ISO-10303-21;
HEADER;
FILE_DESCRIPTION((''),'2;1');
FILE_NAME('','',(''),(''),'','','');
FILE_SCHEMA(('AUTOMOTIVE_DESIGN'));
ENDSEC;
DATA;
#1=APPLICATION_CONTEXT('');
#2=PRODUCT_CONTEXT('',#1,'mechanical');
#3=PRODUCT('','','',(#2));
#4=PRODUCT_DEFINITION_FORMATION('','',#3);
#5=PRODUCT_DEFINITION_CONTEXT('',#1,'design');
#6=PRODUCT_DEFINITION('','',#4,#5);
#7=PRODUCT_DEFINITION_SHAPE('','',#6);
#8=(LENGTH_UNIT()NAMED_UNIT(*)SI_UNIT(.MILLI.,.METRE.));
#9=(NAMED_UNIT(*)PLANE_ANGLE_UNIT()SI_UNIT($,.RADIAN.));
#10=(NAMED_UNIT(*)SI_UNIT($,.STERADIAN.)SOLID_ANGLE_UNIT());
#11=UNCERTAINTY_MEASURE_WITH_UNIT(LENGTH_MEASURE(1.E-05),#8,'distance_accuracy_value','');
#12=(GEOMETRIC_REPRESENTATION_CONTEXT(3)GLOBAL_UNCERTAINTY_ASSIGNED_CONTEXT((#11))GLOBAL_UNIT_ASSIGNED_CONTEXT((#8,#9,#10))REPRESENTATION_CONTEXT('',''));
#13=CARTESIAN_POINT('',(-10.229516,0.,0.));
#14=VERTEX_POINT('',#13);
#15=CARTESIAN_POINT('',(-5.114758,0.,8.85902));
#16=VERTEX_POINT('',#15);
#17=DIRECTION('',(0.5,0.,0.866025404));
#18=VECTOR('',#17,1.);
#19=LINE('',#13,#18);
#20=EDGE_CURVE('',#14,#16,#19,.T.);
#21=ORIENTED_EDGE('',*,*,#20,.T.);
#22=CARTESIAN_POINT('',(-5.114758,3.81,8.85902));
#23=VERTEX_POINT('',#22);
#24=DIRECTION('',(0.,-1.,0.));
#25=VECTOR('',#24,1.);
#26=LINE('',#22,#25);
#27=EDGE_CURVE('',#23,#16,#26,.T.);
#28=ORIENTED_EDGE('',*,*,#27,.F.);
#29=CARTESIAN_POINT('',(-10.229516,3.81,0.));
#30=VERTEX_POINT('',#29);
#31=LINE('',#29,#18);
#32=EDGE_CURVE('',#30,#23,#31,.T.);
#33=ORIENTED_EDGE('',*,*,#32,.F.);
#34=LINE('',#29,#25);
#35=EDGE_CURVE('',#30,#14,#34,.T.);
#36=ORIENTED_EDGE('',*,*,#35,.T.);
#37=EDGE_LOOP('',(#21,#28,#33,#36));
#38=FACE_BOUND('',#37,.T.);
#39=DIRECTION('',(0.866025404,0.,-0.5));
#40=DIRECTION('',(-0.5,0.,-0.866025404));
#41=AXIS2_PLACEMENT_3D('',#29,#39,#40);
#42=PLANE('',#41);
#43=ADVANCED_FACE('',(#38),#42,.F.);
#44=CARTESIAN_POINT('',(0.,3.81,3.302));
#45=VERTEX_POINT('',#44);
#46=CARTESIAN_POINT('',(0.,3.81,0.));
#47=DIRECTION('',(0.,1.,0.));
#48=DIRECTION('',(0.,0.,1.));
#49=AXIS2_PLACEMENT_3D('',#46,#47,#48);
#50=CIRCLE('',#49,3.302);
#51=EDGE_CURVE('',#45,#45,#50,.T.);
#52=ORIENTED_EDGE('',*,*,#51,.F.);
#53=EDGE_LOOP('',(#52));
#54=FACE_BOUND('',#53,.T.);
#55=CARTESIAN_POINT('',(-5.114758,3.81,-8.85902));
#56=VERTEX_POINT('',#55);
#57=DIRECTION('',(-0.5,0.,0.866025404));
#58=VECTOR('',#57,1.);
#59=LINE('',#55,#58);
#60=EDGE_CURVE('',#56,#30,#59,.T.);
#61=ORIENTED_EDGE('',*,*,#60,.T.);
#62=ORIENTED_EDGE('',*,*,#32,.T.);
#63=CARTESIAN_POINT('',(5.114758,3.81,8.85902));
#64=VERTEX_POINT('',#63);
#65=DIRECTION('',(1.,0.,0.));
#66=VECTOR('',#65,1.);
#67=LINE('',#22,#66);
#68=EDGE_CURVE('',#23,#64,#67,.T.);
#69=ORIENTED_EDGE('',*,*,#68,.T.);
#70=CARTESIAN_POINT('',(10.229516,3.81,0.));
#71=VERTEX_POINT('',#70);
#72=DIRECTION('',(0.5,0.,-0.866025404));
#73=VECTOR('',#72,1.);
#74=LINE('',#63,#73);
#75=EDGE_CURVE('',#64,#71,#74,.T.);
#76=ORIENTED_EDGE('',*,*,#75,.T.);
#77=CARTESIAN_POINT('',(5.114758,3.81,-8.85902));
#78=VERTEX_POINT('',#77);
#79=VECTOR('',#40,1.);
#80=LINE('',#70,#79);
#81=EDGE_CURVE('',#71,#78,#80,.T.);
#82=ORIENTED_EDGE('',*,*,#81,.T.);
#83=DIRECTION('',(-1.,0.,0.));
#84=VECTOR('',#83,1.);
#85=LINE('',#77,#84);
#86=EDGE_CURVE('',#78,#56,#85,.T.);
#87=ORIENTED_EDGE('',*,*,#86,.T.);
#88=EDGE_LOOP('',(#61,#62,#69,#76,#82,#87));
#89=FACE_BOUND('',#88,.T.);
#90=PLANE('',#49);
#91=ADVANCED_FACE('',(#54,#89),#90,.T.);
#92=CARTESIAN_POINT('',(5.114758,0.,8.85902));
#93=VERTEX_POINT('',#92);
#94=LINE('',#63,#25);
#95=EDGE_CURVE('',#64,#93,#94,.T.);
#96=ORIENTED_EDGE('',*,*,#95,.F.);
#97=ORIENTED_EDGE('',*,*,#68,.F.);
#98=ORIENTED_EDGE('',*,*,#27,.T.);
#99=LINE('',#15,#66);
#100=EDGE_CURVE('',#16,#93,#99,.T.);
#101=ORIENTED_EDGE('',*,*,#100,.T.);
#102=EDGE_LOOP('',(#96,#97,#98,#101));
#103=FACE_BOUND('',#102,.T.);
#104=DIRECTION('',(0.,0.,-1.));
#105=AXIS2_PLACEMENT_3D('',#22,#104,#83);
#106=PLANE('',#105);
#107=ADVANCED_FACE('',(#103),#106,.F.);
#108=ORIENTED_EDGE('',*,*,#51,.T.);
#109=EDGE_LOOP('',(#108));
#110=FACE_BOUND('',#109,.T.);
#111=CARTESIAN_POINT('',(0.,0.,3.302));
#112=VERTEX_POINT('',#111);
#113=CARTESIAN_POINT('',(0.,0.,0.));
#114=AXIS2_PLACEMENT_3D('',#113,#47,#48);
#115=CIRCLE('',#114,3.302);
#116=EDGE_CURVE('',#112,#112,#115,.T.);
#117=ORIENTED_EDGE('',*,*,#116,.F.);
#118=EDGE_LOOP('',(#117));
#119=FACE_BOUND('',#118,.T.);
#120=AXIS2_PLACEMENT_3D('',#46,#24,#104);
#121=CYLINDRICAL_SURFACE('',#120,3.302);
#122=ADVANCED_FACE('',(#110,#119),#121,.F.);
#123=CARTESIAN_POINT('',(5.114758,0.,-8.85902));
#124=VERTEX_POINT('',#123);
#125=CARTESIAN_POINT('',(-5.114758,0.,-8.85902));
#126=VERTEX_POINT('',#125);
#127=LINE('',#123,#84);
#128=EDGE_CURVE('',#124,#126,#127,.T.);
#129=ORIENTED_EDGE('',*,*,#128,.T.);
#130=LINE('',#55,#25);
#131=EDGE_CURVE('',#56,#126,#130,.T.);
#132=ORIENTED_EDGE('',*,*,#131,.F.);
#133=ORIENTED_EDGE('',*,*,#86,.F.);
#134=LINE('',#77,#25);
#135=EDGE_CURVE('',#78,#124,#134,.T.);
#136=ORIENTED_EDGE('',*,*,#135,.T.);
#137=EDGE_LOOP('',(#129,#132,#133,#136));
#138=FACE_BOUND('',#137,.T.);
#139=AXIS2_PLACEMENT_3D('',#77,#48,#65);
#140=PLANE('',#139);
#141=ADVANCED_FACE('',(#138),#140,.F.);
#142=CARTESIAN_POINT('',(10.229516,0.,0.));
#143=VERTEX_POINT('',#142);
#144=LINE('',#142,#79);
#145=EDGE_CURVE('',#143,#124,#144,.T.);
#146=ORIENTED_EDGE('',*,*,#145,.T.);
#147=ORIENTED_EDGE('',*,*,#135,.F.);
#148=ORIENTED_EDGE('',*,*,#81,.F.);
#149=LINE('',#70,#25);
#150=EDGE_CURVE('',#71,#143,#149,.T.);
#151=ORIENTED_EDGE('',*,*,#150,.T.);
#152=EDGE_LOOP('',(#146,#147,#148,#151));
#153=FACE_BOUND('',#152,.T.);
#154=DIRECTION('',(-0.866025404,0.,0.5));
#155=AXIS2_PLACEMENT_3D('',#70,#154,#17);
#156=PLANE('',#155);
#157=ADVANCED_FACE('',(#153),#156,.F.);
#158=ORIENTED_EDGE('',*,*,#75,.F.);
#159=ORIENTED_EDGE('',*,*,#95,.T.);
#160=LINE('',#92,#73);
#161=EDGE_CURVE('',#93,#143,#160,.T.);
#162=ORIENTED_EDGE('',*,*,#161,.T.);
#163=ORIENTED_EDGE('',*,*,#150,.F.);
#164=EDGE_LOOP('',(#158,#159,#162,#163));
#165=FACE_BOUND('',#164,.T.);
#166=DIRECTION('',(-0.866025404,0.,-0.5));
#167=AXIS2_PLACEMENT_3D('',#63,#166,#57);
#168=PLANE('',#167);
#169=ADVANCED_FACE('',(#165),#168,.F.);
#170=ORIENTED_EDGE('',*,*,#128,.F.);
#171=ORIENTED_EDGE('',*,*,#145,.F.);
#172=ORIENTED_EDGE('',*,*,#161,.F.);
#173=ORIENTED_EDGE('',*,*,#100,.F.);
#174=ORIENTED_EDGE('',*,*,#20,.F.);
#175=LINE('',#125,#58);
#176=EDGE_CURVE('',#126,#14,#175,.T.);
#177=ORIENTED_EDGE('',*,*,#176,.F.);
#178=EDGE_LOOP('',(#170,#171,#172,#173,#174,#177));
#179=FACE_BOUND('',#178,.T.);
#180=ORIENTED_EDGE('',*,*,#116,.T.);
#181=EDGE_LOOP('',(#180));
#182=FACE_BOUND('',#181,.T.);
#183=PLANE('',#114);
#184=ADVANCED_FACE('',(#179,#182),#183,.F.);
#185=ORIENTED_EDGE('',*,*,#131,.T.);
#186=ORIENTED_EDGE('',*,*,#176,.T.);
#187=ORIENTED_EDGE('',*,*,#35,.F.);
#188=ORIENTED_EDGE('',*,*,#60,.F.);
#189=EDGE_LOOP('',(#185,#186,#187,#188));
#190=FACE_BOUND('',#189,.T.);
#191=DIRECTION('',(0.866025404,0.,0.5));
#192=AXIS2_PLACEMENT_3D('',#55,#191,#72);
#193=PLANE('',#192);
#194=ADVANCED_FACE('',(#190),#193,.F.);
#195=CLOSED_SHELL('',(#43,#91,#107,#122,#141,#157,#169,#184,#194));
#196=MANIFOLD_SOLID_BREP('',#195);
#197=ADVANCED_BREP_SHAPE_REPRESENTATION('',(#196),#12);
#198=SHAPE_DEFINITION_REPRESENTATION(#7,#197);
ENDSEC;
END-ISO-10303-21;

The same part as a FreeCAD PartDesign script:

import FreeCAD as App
import Part
import Sketcher

V = App.Vector
Q = App.Units.Quantity

doc = App.newDocument("Part")
body = doc.addObject("PartDesign::Body", "Body")

sketch1 = doc.addObject("Sketcher::SketchObject", "Sketch")
body.addObject(sketch1)
sketch1.AttachmentSupport = (doc.XZ_Plane, [""])
sketch1.MapMode = "FlatFace"
sketch1.addGeometry([
    Part.LineSegment(V(10.2, 0, 0), V(5.1, -8.9, 0)),
    Part.LineSegment(V(5.1, -8.9, 0), V(-5.1, -8.9, 0)),
    Part.LineSegment(V(-5.1, -8.9, 0), V(-10.2, 0, 0)),
    Part.LineSegment(V(-10.2, 0, 0), V(-5.1, 8.9, 0)),
    Part.LineSegment(V(-5.1, 8.9, 0), V(5.1, 8.9, 0)),
    Part.LineSegment(V(5.1, 8.9, 0), V(10.2, 0, 0)),
    Part.Circle(V(0, 0, 0), V(0, 0, 1), 3.3),
], False)
sketch1.addConstraint([
    Sketcher.Constraint("Coincident", 0, 2, 1, 1),
    Sketcher.Constraint("Coincident", 1, 2, 2, 1),
    Sketcher.Constraint("Coincident", 2, 2, 3, 1),
    Sketcher.Constraint("Coincident", 3, 2, 4, 1),
    Sketcher.Constraint("Coincident", 4, 2, 5, 1),
    Sketcher.Constraint("Coincident", 5, 2, 0, 1),
    Sketcher.Constraint("Horizontal", 1),
    Sketcher.Constraint("Horizontal", 4),
    Sketcher.Constraint("Coincident", 6, 3, -1, 1),
    Sketcher.Constraint("Symmetric", 0, 2, 3, 2, -1, 1),
    Sketcher.Constraint("Symmetric", 2, 2, 5, 2, -1, 1),
    Sketcher.Constraint("PointOnObject", 2, 2, -1),
    Sketcher.Constraint("Parallel", 2, 5),
    Sketcher.Constraint("Vertical", 1, 2, 3, 2),
    Sketcher.Constraint("Diameter", 6, Q("0.26 in")),
    Sketcher.Constraint("Angle", 0, Q("-120 deg")),
    Sketcher.Constraint("DistanceX", 1, 2, 1, 1, Q("10.229516 mm")),
    Sketcher.Constraint("DistanceY", 0, 2, -1, 1, Q("8.85902 mm")),
])
pad1 = doc.addObject("PartDesign::Pad", "Pad")
body.addObject(pad1)
pad1.Profile = sketch1
pad1.Length = Q("0.15 in")
pad1.Reversed = True

doc.recompute()
